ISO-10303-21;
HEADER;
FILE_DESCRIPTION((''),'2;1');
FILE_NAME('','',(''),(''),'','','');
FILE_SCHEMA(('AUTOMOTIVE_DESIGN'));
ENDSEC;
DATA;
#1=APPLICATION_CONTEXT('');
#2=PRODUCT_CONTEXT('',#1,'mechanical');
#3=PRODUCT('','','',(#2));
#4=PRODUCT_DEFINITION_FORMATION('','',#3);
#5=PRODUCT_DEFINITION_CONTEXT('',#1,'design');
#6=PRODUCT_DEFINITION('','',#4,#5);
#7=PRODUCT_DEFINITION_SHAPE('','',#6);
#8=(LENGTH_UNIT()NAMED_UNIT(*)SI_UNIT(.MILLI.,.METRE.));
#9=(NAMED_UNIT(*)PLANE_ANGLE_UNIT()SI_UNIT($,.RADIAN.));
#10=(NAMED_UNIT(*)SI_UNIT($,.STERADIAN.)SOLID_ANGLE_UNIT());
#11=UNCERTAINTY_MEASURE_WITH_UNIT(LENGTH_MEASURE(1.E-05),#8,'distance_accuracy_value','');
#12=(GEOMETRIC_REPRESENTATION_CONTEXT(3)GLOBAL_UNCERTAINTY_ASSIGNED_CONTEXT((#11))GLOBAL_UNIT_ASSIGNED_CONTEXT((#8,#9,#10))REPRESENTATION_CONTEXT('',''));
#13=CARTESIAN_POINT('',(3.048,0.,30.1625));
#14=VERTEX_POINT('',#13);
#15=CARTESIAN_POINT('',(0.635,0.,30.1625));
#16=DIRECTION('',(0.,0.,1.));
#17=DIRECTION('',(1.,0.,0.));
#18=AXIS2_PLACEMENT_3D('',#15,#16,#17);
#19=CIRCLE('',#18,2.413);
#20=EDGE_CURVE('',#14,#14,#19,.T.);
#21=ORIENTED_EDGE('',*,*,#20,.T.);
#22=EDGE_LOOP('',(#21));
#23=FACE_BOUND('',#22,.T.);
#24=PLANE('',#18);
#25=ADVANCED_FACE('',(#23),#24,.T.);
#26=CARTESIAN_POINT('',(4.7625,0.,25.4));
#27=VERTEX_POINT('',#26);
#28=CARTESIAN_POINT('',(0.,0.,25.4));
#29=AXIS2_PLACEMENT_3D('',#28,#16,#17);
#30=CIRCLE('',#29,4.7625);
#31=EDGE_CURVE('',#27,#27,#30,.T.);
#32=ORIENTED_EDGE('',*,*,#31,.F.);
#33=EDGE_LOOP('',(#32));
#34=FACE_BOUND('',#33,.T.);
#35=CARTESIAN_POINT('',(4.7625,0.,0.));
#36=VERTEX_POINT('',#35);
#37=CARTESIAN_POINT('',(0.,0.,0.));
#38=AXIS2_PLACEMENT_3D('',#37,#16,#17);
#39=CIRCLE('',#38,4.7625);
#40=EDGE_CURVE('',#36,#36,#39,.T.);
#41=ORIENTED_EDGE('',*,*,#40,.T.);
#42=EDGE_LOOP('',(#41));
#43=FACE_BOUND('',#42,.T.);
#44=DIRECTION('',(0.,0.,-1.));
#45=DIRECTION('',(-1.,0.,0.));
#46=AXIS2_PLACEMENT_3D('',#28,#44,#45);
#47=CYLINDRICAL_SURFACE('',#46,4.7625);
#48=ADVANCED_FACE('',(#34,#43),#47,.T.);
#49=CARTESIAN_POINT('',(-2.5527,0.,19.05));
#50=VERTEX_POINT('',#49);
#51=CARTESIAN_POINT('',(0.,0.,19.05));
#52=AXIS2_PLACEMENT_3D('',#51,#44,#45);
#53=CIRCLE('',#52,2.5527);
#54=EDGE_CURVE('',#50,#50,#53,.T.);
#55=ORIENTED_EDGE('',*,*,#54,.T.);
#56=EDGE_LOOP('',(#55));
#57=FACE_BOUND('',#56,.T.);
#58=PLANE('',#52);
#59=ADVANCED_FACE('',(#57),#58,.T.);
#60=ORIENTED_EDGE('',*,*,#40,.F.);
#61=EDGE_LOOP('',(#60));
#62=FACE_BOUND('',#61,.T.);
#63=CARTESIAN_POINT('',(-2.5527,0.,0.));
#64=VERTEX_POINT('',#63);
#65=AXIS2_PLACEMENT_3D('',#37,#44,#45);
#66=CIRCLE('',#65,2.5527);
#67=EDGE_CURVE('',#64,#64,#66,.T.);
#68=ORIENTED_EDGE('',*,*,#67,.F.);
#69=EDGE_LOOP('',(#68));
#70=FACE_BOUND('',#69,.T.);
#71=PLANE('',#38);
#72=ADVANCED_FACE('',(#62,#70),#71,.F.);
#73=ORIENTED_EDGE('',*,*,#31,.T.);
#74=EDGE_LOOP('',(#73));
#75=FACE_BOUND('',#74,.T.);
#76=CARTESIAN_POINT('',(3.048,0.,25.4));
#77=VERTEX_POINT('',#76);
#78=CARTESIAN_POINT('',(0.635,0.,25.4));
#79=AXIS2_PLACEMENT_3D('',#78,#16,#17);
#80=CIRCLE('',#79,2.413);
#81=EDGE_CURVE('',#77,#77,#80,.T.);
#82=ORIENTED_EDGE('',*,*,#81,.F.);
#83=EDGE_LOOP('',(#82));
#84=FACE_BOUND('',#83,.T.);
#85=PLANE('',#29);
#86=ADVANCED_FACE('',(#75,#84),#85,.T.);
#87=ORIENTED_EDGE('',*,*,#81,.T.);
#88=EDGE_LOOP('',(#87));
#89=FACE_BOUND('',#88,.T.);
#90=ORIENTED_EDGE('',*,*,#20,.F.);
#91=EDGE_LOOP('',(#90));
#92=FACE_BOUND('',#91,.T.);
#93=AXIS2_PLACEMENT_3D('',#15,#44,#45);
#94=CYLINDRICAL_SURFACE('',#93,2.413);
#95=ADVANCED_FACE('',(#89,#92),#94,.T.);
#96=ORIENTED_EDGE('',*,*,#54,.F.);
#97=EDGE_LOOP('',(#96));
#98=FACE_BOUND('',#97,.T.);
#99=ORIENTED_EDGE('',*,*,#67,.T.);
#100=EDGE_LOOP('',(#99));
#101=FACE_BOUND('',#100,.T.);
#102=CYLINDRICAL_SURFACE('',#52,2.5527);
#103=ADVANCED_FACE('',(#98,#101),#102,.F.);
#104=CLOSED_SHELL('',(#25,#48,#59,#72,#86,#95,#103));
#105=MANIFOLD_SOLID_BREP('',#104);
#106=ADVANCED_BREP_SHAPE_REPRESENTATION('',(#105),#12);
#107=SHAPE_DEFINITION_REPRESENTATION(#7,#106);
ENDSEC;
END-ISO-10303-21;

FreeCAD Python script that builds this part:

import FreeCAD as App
import Part
import Sketcher
from FreeCAD import Vector
Q = App.Units.Quantity

doc = App.newDocument("Part")
params = doc.addObject("Spreadsheet::Sheet", "Params")
for row, (alias, value) in enumerate([
    ("sketch1_diameter", "0.375 in"),
    ("pad1_length", "1 in"),
    ("sketch2_diameter", "0.19 in"),
    ("pad2_length", "0.1875 in"),
    ("sketch3_diameter", "0.201 in"),
    ("pocket1_length", "0.75 in"),
], start=1):
    params.set(f"A{row}", alias)
    params.set(f"B{row}", "=" + value)
    params.setAlias(f"B{row}", alias)

body = doc.addObject("PartDesign::Body", "Body")

sketch1 = body.newObject("Sketcher::SketchObject", "Sketch")
sketch1.AttachmentSupport = (doc.getObject("XY_Plane"), [""])
sketch1.MapMode = "FlatFace"
sketch1.addGeometry(Part.Circle(Vector(0, 0, 0), Vector(0, 0, 1), 4.7625), False)
sketch1.addConstraint(Sketcher.Constraint("Coincident", 0, 3, -1, 1))
sketch1.addConstraint(Sketcher.Constraint("Diameter", 0, Q("0.375 in")))
sketch1.setExpression("Constraints[1]", "Params.sketch1_diameter")
pad1 = body.newObject("PartDesign::Pad", "Pad")
pad1.Profile = sketch1
pad1.setExpression("Length", "Params.pad1_length")

sketch2 = body.newObject("Sketcher::SketchObject", "Sketch001")
sketch2.AttachmentSupport = (doc.getObject("XY_Plane"), [""])
sketch2.MapMode = "FlatFace"
sketch2.AttachmentOffset = App.Placement(Vector(0, 0, 1 * 25.4), App.Rotation())
sketch2.addGeometry(Part.Circle(Vector(0.635, 0, 0), Vector(0, 0, 1), 2.413), False)
sketch2.addConstraint(Sketcher.Constraint("PointOnObject", 0, 3, -1))
sketch2.addConstraint(Sketcher.Constraint("Diameter", 0, Q("0.19 in")))
sketch2.addConstraint(Sketcher.Constraint("DistanceX", -1, 1, 0, 3, Q("0.025 in")))
sketch2.setExpression("Constraints[1]", "Params.sketch2_diameter")
pad2 = body.newObject("PartDesign::Pad", "Pad001")
pad2.Profile = sketch2
pad2.setExpression("Length", "Params.pad2_length")

sketch3 = body.newObject("Sketcher::SketchObject", "Sketch002")
sketch3.AttachmentSupport = (doc.getObject("XY_Plane"), [""])
sketch3.MapMode = "FlatFace"
sketch3.addGeometry(Part.Circle(Vector(0, 0, 0), Vector(0, 0, 1), 2.5527), False)
sketch3.addConstraint(Sketcher.Constraint("Coincident", 0, 3, -1, 1))
sketch3.addConstraint(Sketcher.Constraint("Diameter", 0, Q("0.201 in")))
sketch3.setExpression("Constraints[1]", "Params.sketch3_diameter")
pocket1 = body.newObject("PartDesign::Pocket", "Pocket")
pocket1.Profile = sketch3
pocket1.setExpression("Length", "Params.pocket1_length")
pocket1.Reversed = True

doc.recompute()
